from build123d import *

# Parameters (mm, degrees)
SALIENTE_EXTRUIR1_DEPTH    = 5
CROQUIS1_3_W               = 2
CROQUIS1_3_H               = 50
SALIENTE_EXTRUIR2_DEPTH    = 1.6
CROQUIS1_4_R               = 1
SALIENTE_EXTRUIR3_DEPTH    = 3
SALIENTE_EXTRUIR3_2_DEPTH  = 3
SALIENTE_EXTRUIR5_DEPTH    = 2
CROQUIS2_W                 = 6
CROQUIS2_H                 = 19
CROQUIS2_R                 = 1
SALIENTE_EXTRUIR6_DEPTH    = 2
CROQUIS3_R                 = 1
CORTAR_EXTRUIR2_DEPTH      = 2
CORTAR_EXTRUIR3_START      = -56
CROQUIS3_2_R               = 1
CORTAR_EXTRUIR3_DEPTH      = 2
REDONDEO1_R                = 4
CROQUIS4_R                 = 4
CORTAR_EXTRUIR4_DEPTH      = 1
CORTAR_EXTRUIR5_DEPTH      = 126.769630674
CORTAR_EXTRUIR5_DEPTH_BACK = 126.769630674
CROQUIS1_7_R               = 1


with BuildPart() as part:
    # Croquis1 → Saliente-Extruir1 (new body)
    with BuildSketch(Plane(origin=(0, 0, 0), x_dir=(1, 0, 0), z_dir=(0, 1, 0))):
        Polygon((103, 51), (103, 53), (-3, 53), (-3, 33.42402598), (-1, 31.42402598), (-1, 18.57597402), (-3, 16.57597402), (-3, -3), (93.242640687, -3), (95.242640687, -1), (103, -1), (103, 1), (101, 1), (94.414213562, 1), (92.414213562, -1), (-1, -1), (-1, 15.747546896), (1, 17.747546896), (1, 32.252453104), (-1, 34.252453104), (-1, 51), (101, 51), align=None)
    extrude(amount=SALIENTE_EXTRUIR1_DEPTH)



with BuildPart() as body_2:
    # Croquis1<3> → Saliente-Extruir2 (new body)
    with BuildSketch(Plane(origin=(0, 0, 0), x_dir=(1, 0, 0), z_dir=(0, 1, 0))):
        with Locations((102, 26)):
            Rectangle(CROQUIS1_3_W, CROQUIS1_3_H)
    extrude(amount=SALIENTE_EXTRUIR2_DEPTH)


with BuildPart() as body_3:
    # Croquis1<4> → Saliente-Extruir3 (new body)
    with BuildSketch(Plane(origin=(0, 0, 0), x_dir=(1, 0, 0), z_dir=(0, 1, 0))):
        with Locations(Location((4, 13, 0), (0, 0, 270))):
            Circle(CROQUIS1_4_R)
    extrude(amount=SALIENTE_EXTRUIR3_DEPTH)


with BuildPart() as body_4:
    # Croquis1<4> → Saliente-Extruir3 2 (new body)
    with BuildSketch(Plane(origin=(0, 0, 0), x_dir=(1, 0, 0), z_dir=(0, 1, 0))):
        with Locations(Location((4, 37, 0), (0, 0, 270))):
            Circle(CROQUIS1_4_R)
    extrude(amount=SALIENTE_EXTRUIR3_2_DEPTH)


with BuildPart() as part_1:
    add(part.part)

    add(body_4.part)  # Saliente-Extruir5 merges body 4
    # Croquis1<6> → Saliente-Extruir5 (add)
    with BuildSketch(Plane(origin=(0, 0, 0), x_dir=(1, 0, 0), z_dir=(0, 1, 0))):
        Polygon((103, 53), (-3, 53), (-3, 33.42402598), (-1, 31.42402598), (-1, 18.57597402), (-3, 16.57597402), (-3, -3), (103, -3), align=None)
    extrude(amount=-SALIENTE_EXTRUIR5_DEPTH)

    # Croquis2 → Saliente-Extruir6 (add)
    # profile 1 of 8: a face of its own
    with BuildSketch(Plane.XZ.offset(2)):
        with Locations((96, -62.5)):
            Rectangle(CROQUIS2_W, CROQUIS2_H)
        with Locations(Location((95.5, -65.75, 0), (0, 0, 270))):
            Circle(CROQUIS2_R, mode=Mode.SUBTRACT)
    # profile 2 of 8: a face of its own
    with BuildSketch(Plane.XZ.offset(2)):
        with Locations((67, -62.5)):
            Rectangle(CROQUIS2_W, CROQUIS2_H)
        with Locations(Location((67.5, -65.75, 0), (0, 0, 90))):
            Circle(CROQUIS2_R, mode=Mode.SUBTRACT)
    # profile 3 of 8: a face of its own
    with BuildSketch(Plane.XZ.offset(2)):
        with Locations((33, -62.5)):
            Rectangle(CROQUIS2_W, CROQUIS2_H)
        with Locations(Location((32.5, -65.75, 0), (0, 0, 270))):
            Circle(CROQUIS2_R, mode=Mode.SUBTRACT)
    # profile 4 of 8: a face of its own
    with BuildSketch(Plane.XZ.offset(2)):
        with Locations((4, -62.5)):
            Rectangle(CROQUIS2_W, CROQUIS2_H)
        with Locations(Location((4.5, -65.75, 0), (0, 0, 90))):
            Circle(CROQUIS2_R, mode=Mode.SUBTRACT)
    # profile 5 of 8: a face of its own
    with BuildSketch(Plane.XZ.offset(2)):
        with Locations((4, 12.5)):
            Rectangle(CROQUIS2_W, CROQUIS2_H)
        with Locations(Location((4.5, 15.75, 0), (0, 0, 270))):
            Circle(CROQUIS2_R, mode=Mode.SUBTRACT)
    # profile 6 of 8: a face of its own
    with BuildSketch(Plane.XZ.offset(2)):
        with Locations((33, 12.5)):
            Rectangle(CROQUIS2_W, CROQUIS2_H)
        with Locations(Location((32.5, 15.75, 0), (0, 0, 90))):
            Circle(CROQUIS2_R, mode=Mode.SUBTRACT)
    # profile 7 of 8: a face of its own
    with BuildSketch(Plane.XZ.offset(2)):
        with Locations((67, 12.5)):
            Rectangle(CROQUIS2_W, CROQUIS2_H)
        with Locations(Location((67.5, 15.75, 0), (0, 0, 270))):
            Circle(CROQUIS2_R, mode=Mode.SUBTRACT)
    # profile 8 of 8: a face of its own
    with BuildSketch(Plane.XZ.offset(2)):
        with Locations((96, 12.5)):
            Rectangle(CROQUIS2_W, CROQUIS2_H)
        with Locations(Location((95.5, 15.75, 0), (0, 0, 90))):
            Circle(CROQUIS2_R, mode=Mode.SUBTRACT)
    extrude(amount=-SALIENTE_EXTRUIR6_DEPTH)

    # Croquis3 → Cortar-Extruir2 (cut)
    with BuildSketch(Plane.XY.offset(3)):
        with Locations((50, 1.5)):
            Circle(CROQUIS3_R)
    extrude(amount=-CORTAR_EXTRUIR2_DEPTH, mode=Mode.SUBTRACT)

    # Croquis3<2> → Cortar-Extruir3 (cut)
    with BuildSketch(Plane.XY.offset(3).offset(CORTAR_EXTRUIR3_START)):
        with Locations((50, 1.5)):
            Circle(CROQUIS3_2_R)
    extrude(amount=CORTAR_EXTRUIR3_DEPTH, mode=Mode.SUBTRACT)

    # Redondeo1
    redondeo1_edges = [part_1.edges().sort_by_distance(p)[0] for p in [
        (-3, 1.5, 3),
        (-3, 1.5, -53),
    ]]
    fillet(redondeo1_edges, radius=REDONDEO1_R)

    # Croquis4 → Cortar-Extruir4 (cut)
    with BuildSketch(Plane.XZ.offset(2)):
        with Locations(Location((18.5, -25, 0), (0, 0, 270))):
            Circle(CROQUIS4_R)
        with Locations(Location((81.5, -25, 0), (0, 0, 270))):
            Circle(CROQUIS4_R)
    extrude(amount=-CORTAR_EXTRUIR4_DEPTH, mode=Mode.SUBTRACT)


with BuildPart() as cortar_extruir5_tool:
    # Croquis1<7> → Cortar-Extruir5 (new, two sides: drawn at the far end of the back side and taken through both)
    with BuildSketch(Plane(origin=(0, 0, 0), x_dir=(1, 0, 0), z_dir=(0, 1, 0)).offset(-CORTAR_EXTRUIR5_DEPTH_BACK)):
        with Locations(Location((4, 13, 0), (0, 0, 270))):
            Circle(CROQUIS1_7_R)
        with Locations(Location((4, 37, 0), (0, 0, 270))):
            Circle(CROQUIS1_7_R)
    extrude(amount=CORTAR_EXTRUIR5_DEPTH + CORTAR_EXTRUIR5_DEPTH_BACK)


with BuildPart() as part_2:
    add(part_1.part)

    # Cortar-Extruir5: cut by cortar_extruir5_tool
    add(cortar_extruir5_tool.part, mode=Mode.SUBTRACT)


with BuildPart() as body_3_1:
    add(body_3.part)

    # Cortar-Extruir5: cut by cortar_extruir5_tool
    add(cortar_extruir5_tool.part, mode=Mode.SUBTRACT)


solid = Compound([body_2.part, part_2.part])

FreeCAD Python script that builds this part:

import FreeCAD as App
import Part
import Sketcher
Q = App.Units.Quantity


def edges_at(feature, points):
    """Names of the edges that pass closest to the given points."""
    edges = feature.Shape.Edges
    near = lambda p: min(range(len(edges)), key=lambda i: edges[i].distToShape(Part.Vertex(*p))[0])
    return sorted({f"Edge{near(p) + 1}" for p in points})


def add_polygon(sketch, points):
    """Adds a closed chain of lines whose ends are joined by coincident constraints."""
    first, n = sketch.GeometryCount, len(points)
    for a, b in zip(points, points[1:] + points[:1]):
        sketch.addGeometry(Part.LineSegment(App.Vector(*a, 0), App.Vector(*b, 0)), False)
    for i in range(n):
        sketch.addConstraint(Sketcher.Constraint("Coincident", first + i, 2, first + (i + 1) % n, 1))

doc = App.newDocument("Part")
params = doc.addObject("Spreadsheet::Sheet", "Params")
for row, (alias, value) in enumerate([
    ("sketch1_width", "106 mm"),
    ("sketch1_width2", "104 mm"),
    ("pad1_length", "5 mm"),
    ("sketch2_width", "2 mm"),
    ("sketch2_height", "50 mm"),
    ("pad2_length", "1.6 mm"),
    ("sketch3_diameter", "2 mm"),
    ("pad3_length", "3 mm"),
    ("sketch4_diameter", "2 mm"),
    ("pad4_length", "3 mm"),
    ("sketch5_width", "106 mm"),
    ("sketch5_height", "56 mm"),
    ("pad5_length", "2 mm"),
    ("sketch6_diameter", "2 mm"),
    ("sketch6_width", "6 mm"),
    ("sketch6_height", "19 mm"),
    ("pad6_length", "2 mm"),
    ("sketch7_diameter", "2 mm"),
    ("pocket1_length", "2 mm"),
    ("sketch8_diameter", "2 mm"),
    ("pocket2_length", "2 mm"),
    ("fillet_radius", "4 mm"),
    ("sketch9_diameter", "8 mm"),
    ("pocket3_length", "1 mm"),
    ("sketch10_diameter", "2 mm"),
    ("pad7_length", "126.769631 mm"),
    ("pad7_length2", "126.769631 mm"),
], start=1):
    params.set(f"A{row}", alias)
    params.set(f"B{row}", "=" + value)
    params.setAlias(f"B{row}", alias)

body = doc.addObject("PartDesign::Body", "Body")

# Sketch on XZ plane
sketch1 = body.newObject("Sketcher::SketchObject", "Sketch")
sketch1.AttachmentSupport = (doc.getObject("XZ_Plane"), [""])
sketch1.MapMode = "FlatFace"
add_polygon(sketch1, [(103, -51), (103, -53), (-3, -53), (-3, -33.4), (-1, -31.4), (-1, -18.6), (-3, -16.6), (-3, 3), (93.2, 3), (95.2, 1), (103, 1), (103, -1), (94.4, -1), (92.4, 1), (-1, 1), (-1, -15.7), (1, -17.7), (1, -32.3), (-1, -34.3), (-1, -51)])  # lines 0-19
sketch1.addConstraint(Sketcher.Constraint("Vertical", 0))
sketch1.addConstraint(Sketcher.Constraint("Horizontal", 1))
sketch1.addConstraint(Sketcher.Constraint("Vertical", 2))
sketch1.addConstraint(Sketcher.Constraint("Vertical", 4))
sketch1.addConstraint(Sketcher.Constraint("Vertical", 6))
sketch1.addConstraint(Sketcher.Constraint("Horizontal", 7))
sketch1.addConstraint(Sketcher.Constraint("Horizontal", 9))
sketch1.addConstraint(Sketcher.Constraint("Vertical", 10))
sketch1.addConstraint(Sketcher.Constraint("Horizontal", 11))
sketch1.addConstraint(Sketcher.Constraint("Horizontal", 13))
sketch1.addConstraint(Sketcher.Constraint("Vertical", 14))
sketch1.addConstraint(Sketcher.Constraint("Vertical", 16))
sketch1.addConstraint(Sketcher.Constraint("Vertical", 18))
sketch1.addConstraint(Sketcher.Constraint("Horizontal", 19))
sketch1.addConstraint(Sketcher.Constraint("Perpendicular", 3, 5))
sketch1.addConstraint(Sketcher.Constraint("Parallel", 5, 8))
sketch1.addConstraint(Sketcher.Constraint("Parallel", 8, 12))
sketch1.addConstraint(Sketcher.Constraint("Parallel", 12, 15))
sketch1.addConstraint(Sketcher.Constraint("Perpendicular", 15, 17))
sketch1.addConstraint(Sketcher.Constraint("Horizontal", 9, 2, 12, 2))
sketch1.addConstraint(Sketcher.Constraint("Vertical", 2, 2, 5, 2))
sketch1.addConstraint(Sketcher.Constraint("Vertical", 0, 2, 9, 2))
sketch1.addConstraint(Sketcher.Constraint("Vertical", 4, 2, 13, 2))
sketch1.addConstraint(Sketcher.Constraint("Vertical", 14, 2, 17, 2))
sketch1.addConstraint(Sketcher.Constraint("Equal", 2, 6))
sketch1.addConstraint(Sketcher.Constraint("Equal", 0, 10))
sketch1.addConstraint(Sketcher.Constraint("Equal", 14, 18))
sketch1.addConstraint(Sketcher.Constraint("Equal", 3, 5))
sketch1.addConstraint(Sketcher.Constraint("Equal", 5, 8))
sketch1.addConstraint(Sketcher.Constraint("Equal", 8, 12))
sketch1.addConstraint(Sketcher.Constraint("Equal", 12, 15))
sketch1.addConstraint(Sketcher.Constraint("DistanceX", 1, 2, 1, 1, Q("106 mm")))
sketch1.addConstraint(Sketcher.Constraint("DistanceX", 19, 1, 19, 2, Q("104 mm")))
sketch1.addConstraint(Sketcher.Constraint("DistanceX", -1, 1, 0, 2, Q("103 mm")))
sketch1.addConstraint(Sketcher.Constraint("DistanceY", 0, 2, -1, 1, Q("53 mm")))
sketch1.addConstraint(Sketcher.Constraint("DistanceY", -1, 1, 6, 2, Q("3 mm")))
sketch1.addConstraint(Sketcher.Constraint("DistanceX", 7, 1, 7, 2, Q("96.242641 mm")))
sketch1.addConstraint(Sketcher.Constraint("DistanceY", 4, 1, 4, 2, Q("12.848052 mm")))
sketch1.addConstraint(Sketcher.Constraint("DistanceX", 11, 2, 11, 1, Q("8.585786 mm")))
sketch1.addConstraint(Sketcher.Constraint("DistanceY", 14, 2, 14, 1, Q("16.747547 mm")))
sketch1.setExpression("Constraints[51]", "Params.sketch1_width")
sketch1.setExpression("Constraints[52]", "Params.sketch1_width2")
pad1 = body.newObject("PartDesign::Pad", "Pad")
pad1.Profile = sketch1
pad1.setExpression("Length", "Params.pad1_length")
pad1.Reversed = True
body2 = doc.addObject("PartDesign::Body", "Body001")

# Sketch on XZ plane
sketch2 = body2.newObject("Sketcher::SketchObject", "Sketch001")
sketch2.AttachmentSupport = (doc.getObject("XZ_Plane001"), [""])
sketch2.MapMode = "FlatFace"
add_polygon(sketch2, [(101, -51), (101, -1), (103, -1), (103, -51)])  # lines 0-3
sketch2.addConstraint(Sketcher.Constraint("Vertical", 0))
sketch2.addConstraint(Sketcher.Constraint("Horizontal", 1))
sketch2.addConstraint(Sketcher.Constraint("Vertical", 2))
sketch2.addConstraint(Sketcher.Constraint("Horizontal", 3))
sketch2.addConstraint(Sketcher.Constraint("DistanceX", 1, 1, 1, 2, Q("2 mm")))
sketch2.addConstraint(Sketcher.Constraint("DistanceY", 0, 1, 0, 2, Q("50 mm")))
sketch2.addConstraint(Sketcher.Constraint("DistanceX", -1, 1, 0, 2, Q("101 mm")))
sketch2.addConstraint(Sketcher.Constraint("DistanceY", 0, 2, -1, 1, Q("1 mm")))
sketch2.setExpression("Constraints[8]", "Params.sketch2_width")
sketch2.setExpression("Constraints[9]", "Params.sketch2_height")
pad2 = body2.newObject("PartDesign::Pad", "Pad001")
pad2.Profile = sketch2
pad2.setExpression("Length", "Params.pad2_length")
pad2.Reversed = True
body3 = doc.addObject("PartDesign::Body", "Body002")

# Sketch on XZ plane
sketch3 = body3.newObject("Sketcher::SketchObject", "Sketch002")
sketch3.AttachmentSupport = (doc.getObject("XZ_Plane002"), [""])
sketch3.MapMode = "FlatFace"
sketch3.addGeometry(Part.Circle(App.Vector(4, -13, 0), App.Vector(0, 0, 1), 1), False)
sketch3.addConstraint(Sketcher.Constraint("Diameter", 0, Q("2 mm")))
sketch3.addConstraint(Sketcher.Constraint("DistanceX", -1, 1, 0, 3, Q("4 mm")))
sketch3.addConstraint(Sketcher.Constraint("DistanceY", 0, 3, -1, 1, Q("13 mm")))
sketch3.setExpression("Constraints[0]", "Params.sketch3_diameter")
pad3 = body3.newObject("PartDesign::Pad", "Pad002")
pad3.Profile = sketch3
pad3.setExpression("Length", "Params.pad3_length")
pad3.Reversed = True
body4 = doc.addObject("PartDesign::Body", "Body003")

# Sketch on XZ plane
sketch4 = body4.newObject("Sketcher::SketchObject", "Sketch003")
sketch4.AttachmentSupport = (doc.getObject("XZ_Plane003"), [""])
sketch4.MapMode = "FlatFace"
sketch4.addGeometry(Part.Circle(App.Vector(4, -37, 0), App.Vector(0, 0, 1), 1), False)
sketch4.addConstraint(Sketcher.Constraint("Diameter", 0, Q("2 mm")))
sketch4.addConstraint(Sketcher.Constraint("DistanceX", -1, 1, 0, 3, Q("4 mm")))
sketch4.addConstraint(Sketcher.Constraint("DistanceY", 0, 3, -1, 1, Q("37 mm")))
sketch4.setExpression("Constraints[0]", "Params.sketch4_diameter")
pad4 = body4.newObject("PartDesign::Pad", "Pad003")
pad4.Profile = sketch4
pad4.setExpression("Length", "Params.pad4_length")
pad4.Reversed = True
body.AllowCompound = True
doc.recompute()

boolean = body.newObject("PartDesign::Boolean", "Boolean")
boolean.Type = "Fuse"
boolean.addObjects([body4])

# Sketch on XZ plane
sketch5 = body.newObject("Sketcher::SketchObject", "Sketch004")
sketch5.AttachmentSupport = (doc.getObject("XZ_Plane"), [""])
sketch5.MapMode = "FlatFace"
add_polygon(sketch5, [(103, -53), (-3, -53), (-3, -33.4), (-1, -31.4), (-1, -18.6), (-3, -16.6), (-3, 3), (103, 3)])  # lines 0-7
sketch5.addConstraint(Sketcher.Constraint("Horizontal", 0))
sketch5.addConstraint(Sketcher.Constraint("Vertical", 1))
sketch5.addConstraint(Sketcher.Constraint("Vertical", 3))
sketch5.addConstraint(Sketcher.Constraint("Vertical", 5))
sketch5.addConstraint(Sketcher.Constraint("Horizontal", 6))
sketch5.addConstraint(Sketcher.Constraint("Vertical", 7))
sketch5.addConstraint(Sketcher.Constraint("Perpendicular", 2, 4))
sketch5.addConstraint(Sketcher.Constraint("Vertical", 1, 2, 4, 2))
sketch5.addConstraint(Sketcher.Constraint("Equal", 1, 5))
sketch5.addConstraint(Sketcher.Constraint("Equal", 2, 4))
sketch5.addConstraint(Sketcher.Constraint("DistanceX", 0, 2, 0, 1, Q("106 mm")))
sketch5.addConstraint(Sketcher.Constraint("DistanceY", 7, 2, 7, 1, Q("56 mm")))
sketch5.addConstraint(Sketcher.Constraint("DistanceX", 0, 2, -1, 1, Q("3 mm")))
sketch5.addConstraint(Sketcher.Constraint("DistanceY", 0, 2, -1, 1, Q("53 mm")))
sketch5.addConstraint(Sketcher.Constraint("DistanceX", 2, 2, -1, 1, Q("1 mm")))
sketch5.addConstraint(Sketcher.Constraint("DistanceY", 3, 1, 3, 2, Q("12.848052 mm")))
sketch5.setExpression("Constraints[18]", "Params.sketch5_width")
sketch5.setExpression("Constraints[19]", "Params.sketch5_height")
pad5 = body.newObject("PartDesign::Pad", "Pad004")
pad5.Profile = sketch5
pad5.setExpression("Length", "Params.pad5_length")

# Sketch on XZ plane
sketch6 = body.newObject("Sketcher::SketchObject", "Sketch005")
sketch6.AttachmentSupport = (doc.getObject("XZ_Plane"), [""])
sketch6.MapMode = "FlatFace"
sketch6.AttachmentOffset = App.Placement(App.Vector(0, 0, 2), App.Rotation())
add_polygon(sketch6, [(93, -53), (93, -72), (99, -72), (99, -53)])  # lines 0-3
sketch6.addGeometry(Part.Circle(App.Vector(95.5, -65.8, 0), App.Vector(0, 0, 1), 1), False)  # 4
add_polygon(sketch6, [(64, -53), (64, -72), (70, -72), (70, -53)])  # lines 5-8
sketch6.addGeometry(Part.Circle(App.Vector(67.5, -65.8, 0), App.Vector(0, 0, 1), 1), False)  # 9
add_polygon(sketch6, [(30, -53), (30, -72), (36, -72), (36, -53)])  # lines 10-13
sketch6.addGeometry(Part.Circle(App.Vector(32.5, -65.8, 0), App.Vector(0, 0, 1), 1), False)  # 14
add_polygon(sketch6, [(1, -53), (1, -72), (7, -72), (7, -53)])  # lines 15-18
sketch6.addGeometry(Part.Circle(App.Vector(4.5, -65.8, 0), App.Vector(0, 0, 1), 1), False)  # 19
add_polygon(sketch6, [(1, 22), (1, 3), (7, 3), (7, 22)])  # lines 20-23
sketch6.addGeometry(Part.Circle(App.Vector(4.5, 15.8, 0), App.Vector(0, 0, 1), 1), False)  # 24
add_polygon(sketch6, [(30, 22), (30, 3), (36, 3), (36, 22)])  # lines 25-28
sketch6.addGeometry(Part.Circle(App.Vector(32.5, 15.8, 0), App.Vector(0, 0, 1), 1), False)  # 29
add_polygon(sketch6, [(64, 22), (64, 3), (70, 3), (70, 22)])  # lines 30-33
sketch6.addGeometry(Part.Circle(App.Vector(67.5, 15.8, 0), App.Vector(0, 0, 1), 1), False)  # 34
add_polygon(sketch6, [(93, 22), (93, 3), (99, 3), (99, 22)])  # lines 35-38
sketch6.addGeometry(Part.Circle(App.Vector(95.5, 15.8, 0), App.Vector(0, 0, 1), 1), False)  # 39
sketch6.addConstraint(Sketcher.Constraint("Vertical", 0))
sketch6.addConstraint(Sketcher.Constraint("Horizontal", 1))
sketch6.addConstraint(Sketcher.Constraint("Vertical", 2))
sketch6.addConstraint(Sketcher.Constraint("Horizontal", 3))
sketch6.addConstraint(Sketcher.Constraint("Vertical", 5))
sketch6.addConstraint(Sketcher.Constraint("Horizontal", 6))
sketch6.addConstraint(Sketcher.Constraint("Vertical", 7))
sketch6.addConstraint(Sketcher.Constraint("Horizontal", 8))
sketch6.addConstraint(Sketcher.Constraint("Vertical", 10))
sketch6.addConstraint(Sketcher.Constraint("Horizontal", 11))
sketch6.addConstraint(Sketcher.Constraint("Vertical", 12))
sketch6.addConstraint(Sketcher.Constraint("Horizontal", 13))
sketch6.addConstraint(Sketcher.Constraint("Vertical", 15))
sketch6.addConstraint(Sketcher.Constraint("Horizontal", 16))
sketch6.addConstraint(Sketcher.Constraint("Vertical", 17))
sketch6.addConstraint(Sketcher.Constraint("Horizontal", 18))
sketch6.addConstraint(Sketcher.Constraint("Vertical", 20))
sketch6.addConstraint(Sketcher.Constraint("Horizontal", 21))
sketch6.addConstraint(Sketcher.Constraint("Vertical", 22))
sketch6.addConstraint(Sketcher.Constraint("Horizontal", 23))
sketch6.addConstraint(Sketcher.Constraint("Vertical", 25))
sketch6.addConstraint(Sketcher.Constraint("Horizontal", 26))
sketch6.addConstraint(Sketcher.Constraint("Vertical", 27))
sketch6.addConstraint(Sketcher.Constraint("Horizontal", 28))
sketch6.addConstraint(Sketcher.Constraint("Vertical", 30))
sketch6.addConstraint(Sketcher.Constraint("Horizontal", 31))
sketch6.addConstraint(Sketcher.Constraint("Vertical", 32))
sketch6.addConstraint(Sketcher.Constraint("Horizontal", 33))
sketch6.addConstraint(Sketcher.Constraint("Vertical", 35))
sketch6.addConstraint(Sketcher.Constraint("Horizontal", 36))
sketch6.addConstraint(Sketcher.Constraint("Vertical", 37))
sketch6.addConstraint(Sketcher.Constraint("Horizontal", 38))
sketch6.addConstraint(Sketcher.Constraint("Equal", 4, 9))
sketch6.addConstraint(Sketcher.Constraint("Equal", 9, 14))
sketch6.addConstraint(Sketcher.Constraint("Equal", 14, 19))
sketch6.addConstraint(Sketcher.Constraint("Equal", 19, 24))
sketch6.addConstraint(Sketcher.Constraint("Equal", 24, 29))
sketch6.addConstraint(Sketcher.Constraint("Equal", 29, 34))
sketch6.addConstraint(Sketcher.Constraint("Equal", 34, 39))
sketch6.addConstraint(Sketcher.Constraint("Horizontal", 4, 3, 9, 3))
sketch6.addConstraint(Sketcher.Constraint("Horizontal", 9, 3, 14, 3))
sketch6.addConstraint(Sketcher.Constraint("Horizontal", 14, 3, 19, 3))
sketch6.addConstraint(Sketcher.Constraint("Horizontal", 24, 3, 29, 3))
sketch6.addConstraint(Sketcher.Constraint("Horizontal", 29, 3, 34, 3))
sketch6.addConstraint(Sketcher.Constraint("Horizontal", 34, 3, 39, 3))
sketch6.addConstraint(Sketcher.Constraint("Horizontal", 1, 2, 5, 2))
sketch6.addConstraint(Sketcher.Constraint("Horizontal", 3, 2, 7, 2))
sketch6.addConstraint(Sketcher.Constraint("Horizontal", 6, 2, 10, 2))
sketch6.addConstraint(Sketcher.Constraint("Horizontal", 8, 2, 12, 2))
sketch6.addConstraint(Sketcher.Constraint("Horizontal", 11, 2, 15, 2))
sketch6.addConstraint(Sketcher.Constraint("Horizontal", 13, 2, 17, 2))
sketch6.addConstraint(Sketcher.Constraint("Horizontal", 21, 2, 25, 2))
sketch6.addConstraint(Sketcher.Constraint("Horizontal", 23, 2, 27, 2))
sketch6.addConstraint(Sketcher.Constraint("Horizontal", 26, 2, 30, 2))
sketch6.addConstraint(Sketcher.Constraint("Horizontal", 28, 2, 32, 2))
sketch6.addConstraint(Sketcher.Constraint("Horizontal", 31, 2, 35, 2))
sketch6.addConstraint(Sketcher.Constraint("Horizontal", 33, 2, 37, 2))
sketch6.addConstraint(Sketcher.Constraint("Vertical", 19, 3, 24, 3))
sketch6.addConstraint(Sketcher.Constraint("Vertical", 14, 3, 29, 3))
sketch6.addConstraint(Sketcher.Constraint("Vertical", 9, 3, 34, 3))
sketch6.addConstraint(Sketcher.Constraint("Vertical", 4, 3, 39, 3))
sketch6.addConstraint(Sketcher.Constraint("Vertical", 18, 2, 20, 2))
sketch6.addConstraint(Sketcher.Constraint("Vertical", 17, 2, 21, 2))
sketch6.addConstraint(Sketcher.Constraint("Vertical", 13, 2, 25, 2))
sketch6.addConstraint(Sketcher.Constraint("Vertical", 12, 2, 26, 2))
sketch6.addConstraint(Sketcher.Constraint("Vertical", 8, 2, 30, 2))
sketch6.addConstraint(Sketcher.Constraint("Vertical", 7, 2, 31, 2))
sketch6.addConstraint(Sketcher.Constraint("Vertical", 3, 2, 35, 2))
sketch6.addConstraint(Sketcher.Constraint("Vertical", 2, 2, 36, 2))
sketch6.addConstraint(Sketcher.Constraint("Equal", 3, 6))
sketch6.addConstraint(Sketcher.Constraint("Equal", 8, 11))
sketch6.addConstraint(Sketcher.Constraint("Equal", 13, 16))
sketch6.addConstraint(Sketcher.Constraint("Equal", 17, 20))
sketch6.addConstraint(Sketcher.Constraint("Diameter", 4, Q("2 mm")))
sketch6.addConstraint(Sketcher.Constraint("DistanceX", 1, 1, 1, 2, Q("6 mm")))
sketch6.addConstraint(Sketcher.Constraint("DistanceY", 0, 2, 0, 1, Q("19 mm")))
sketch6.addConstraint(Sketcher.Constraint("DistanceX", -1, 1, 0, 2, Q("93 mm")))
sketch6.addConstraint(Sketcher.Constraint("DistanceY", 0, 2, -1, 1, Q("72 mm")))
sketch6.addConstraint(Sketcher.Constraint("DistanceX", -1, 1, 5, 2, Q("64 mm")))
sketch6.addConstraint(Sketcher.Constraint("DistanceX", -1, 1, 10, 2, Q("30 mm")))
sketch6.addConstraint(Sketcher.Constraint("DistanceX", -1, 1, 15, 2, Q("1 mm")))
sketch6.addConstraint(Sketcher.Constraint("DistanceY", -1, 1, 20, 2, Q("3 mm")))
sketch6.addConstraint(Sketcher.Constraint("DistanceX", 9, 3, 4, 3, Q("28 mm")))
sketch6.addConstraint(Sketcher.Constraint("DistanceX", 14, 3, 9, 3, Q("35 mm")))
sketch6.addConstraint(Sketcher.Constraint("DistanceX", 19, 3, 14, 3, Q("28 mm")))
sketch6.addConstraint(Sketcher.Constraint("DistanceX", -1, 1, 4, 3, Q("95.5 mm")))
sketch6.addConstraint(Sketcher.Constraint("DistanceY", 19, 3, 24, 3, Q("81.5 mm")))
sketch6.addConstraint(Sketcher.Constraint("DistanceY", 4, 3, -1, 1, Q("65.75 mm")))
sketch6.setExpression("Constraints[105]", "Params.sketch6_diameter")
sketch6.setExpression("Constraints[106]", "Params.sketch6_width")
sketch6.setExpression("Constraints[107]", "Params.sketch6_height")
pad6 = body.newObject("PartDesign::Pad", "Pad005")
pad6.Profile = sketch6
pad6.setExpression("Length", "Params.pad6_length")
pad6.Reversed = True

# Sketch on XY plane
sketch7 = body.newObject("Sketcher::SketchObject", "Sketch006")
sketch7.AttachmentSupport = (doc.getObject("XY_Plane"), [""])
sketch7.MapMode = "FlatFace"
sketch7.AttachmentOffset = App.Placement(App.Vector(0, 0, 3), App.Rotation())
sketch7.addGeometry(Part.Circle(App.Vector(50, 1.5, 0), App.Vector(0, 0, 1), 1), False)
sketch7.addConstraint(Sketcher.Constraint("Diameter", 0, Q("2 mm")))
sketch7.addConstraint(Sketcher.Constraint("DistanceX", -1, 1, 0, 3, Q("50 mm")))
sketch7.addConstraint(Sketcher.Constraint("DistanceY", -1, 1, 0, 3, Q("1.5 mm")))
sketch7.setExpression("Constraints[0]", "Params.sketch7_diameter")
pocket1 = body.newObject("PartDesign::Pocket", "Pocket")
pocket1.Profile = sketch7
pocket1.setExpression("Length", "Params.pocket1_length")

# Sketch on XY plane
sketch8 = body.newObject("Sketcher::SketchObject", "Sketch007")
sketch8.AttachmentSupport = (doc.getObject("XY_Plane"), [""])
sketch8.MapMode = "FlatFace"
sketch8.AttachmentOffset = App.Placement(App.Vector(0, 0, -53), App.Rotation())
sketch8.addGeometry(Part.Circle(App.Vector(50, 1.5, 0), App.Vector(0, 0, 1), 1), False)
sketch8.addConstraint(Sketcher.Constraint("Diameter", 0, Q("2 mm")))
sketch8.addConstraint(Sketcher.Constraint("DistanceX", -1, 1, 0, 3, Q("50 mm")))
sketch8.addConstraint(Sketcher.Constraint("DistanceY", -1, 1, 0, 3, Q("1.5 mm")))
sketch8.setExpression("Constraints[0]", "Params.sketch8_diameter")
pocket2 = body.newObject("PartDesign::Pocket", "Pocket001")
pocket2.Profile = sketch8
pocket2.setExpression("Length", "Params.pocket2_length")
pocket2.Reversed = True
doc.recompute()

fillet = body.newObject("PartDesign::Fillet", "Fillet")
fillet.Base = (pocket2, edges_at(pocket2, [(-3, 1.5, 3), (-3, 1.5, -53)]))
fillet.setExpression("Radius", "Params.fillet_radius")

# Sketch on XZ plane
sketch9 = body.newObject("Sketcher::SketchObject", "Sketch008")
sketch9.AttachmentSupport = (doc.getObject("XZ_Plane"), [""])
sketch9.MapMode = "FlatFace"
sketch9.AttachmentOffset = App.Placement(App.Vector(0, 0, 2), App.Rotation())
sketch9.addGeometry(Part.Circle(App.Vector(18.5, -25, 0), App.Vector(0, 0, 1), 4), False)
sketch9.addGeometry(Part.Circle(App.Vector(81.5, -25, 0), App.Vector(0, 0, 1), 4), False)
sketch9.addConstraint(Sketcher.Constraint("Equal", 0, 1))
sketch9.addConstraint(Sketcher.Constraint("Horizontal", 0, 3, 1, 3))
sketch9.addConstraint(Sketcher.Constraint("Diameter", 0, Q("8 mm")))
sketch9.addConstraint(Sketcher.Constraint("DistanceY", 0, 3, -1, 1, Q("25 mm")))
sketch9.addConstraint(Sketcher.Constraint("DistanceX", 0, 3, 1, 3, Q("63 mm")))
sketch9.addConstraint(Sketcher.Constraint("DistanceX", -1, 1, 0, 3, Q("18.5 mm")))
sketch9.setExpression("Constraints[2]", "Params.sketch9_diameter")
pocket3 = body.newObject("PartDesign::Pocket", "Pocket002")
pocket3.Profile = sketch9
pocket3.setExpression("Length", "Params.pocket3_length")
body5 = doc.addObject("PartDesign::Body", "Body004")
body5.AllowCompound = True

# Sketch on XZ plane
sketch10 = body5.newObject("Sketcher::SketchObject", "Sketch009")
sketch10.AttachmentSupport = (doc.getObject("XZ_Plane004"), [""])
sketch10.MapMode = "FlatFace"
sketch10.addGeometry(Part.Circle(App.Vector(4, -13, 0), App.Vector(0, 0, 1), 1), False)
sketch10.addGeometry(Part.Circle(App.Vector(4, -37, 0), App.Vector(0, 0, 1), 1), False)
sketch10.addConstraint(Sketcher.Constraint("Equal", 0, 1))
sketch10.addConstraint(Sketcher.Constraint("Vertical", 0, 3, 1, 3))
sketch10.addConstraint(Sketcher.Constraint("Diameter", 0, Q("2 mm")))
sketch10.addConstraint(Sketcher.Constraint("DistanceX", -1, 1, 0, 3, Q("4 mm")))
sketch10.addConstraint(Sketcher.Constraint("DistanceY", 0, 3, -1, 1, Q("13 mm")))
sketch10.addConstraint(Sketcher.Constraint("DistanceY", 1, 3, -1, 1, Q("37 mm")))
sketch10.setExpression("Constraints[2]", "Params.sketch10_diameter")
pad7 = body5.newObject("PartDesign::Pad", "Pad006")
pad7.Profile = sketch10
pad7.Type = "TwoLengths"
pad7.setExpression("Length", "Params.pad7_length")
pad7.setExpression("Length2", "Params.pad7_length2")
pad7.Reversed = True
doc.recompute()

body6 = doc.addObject("PartDesign::Body", "Body005")
body6.BaseFeature = body5
boolean2 = body.newObject("PartDesign::Boolean", "Boolean001")
boolean2.Type = "Cut"
boolean2.addObjects([body6])
doc.recompute()

boolean3 = body3.newObject("PartDesign::Boolean", "Boolean002")
boolean3.Type = "Cut"
boolean3.addObjects([body5])

doc.recompute()
